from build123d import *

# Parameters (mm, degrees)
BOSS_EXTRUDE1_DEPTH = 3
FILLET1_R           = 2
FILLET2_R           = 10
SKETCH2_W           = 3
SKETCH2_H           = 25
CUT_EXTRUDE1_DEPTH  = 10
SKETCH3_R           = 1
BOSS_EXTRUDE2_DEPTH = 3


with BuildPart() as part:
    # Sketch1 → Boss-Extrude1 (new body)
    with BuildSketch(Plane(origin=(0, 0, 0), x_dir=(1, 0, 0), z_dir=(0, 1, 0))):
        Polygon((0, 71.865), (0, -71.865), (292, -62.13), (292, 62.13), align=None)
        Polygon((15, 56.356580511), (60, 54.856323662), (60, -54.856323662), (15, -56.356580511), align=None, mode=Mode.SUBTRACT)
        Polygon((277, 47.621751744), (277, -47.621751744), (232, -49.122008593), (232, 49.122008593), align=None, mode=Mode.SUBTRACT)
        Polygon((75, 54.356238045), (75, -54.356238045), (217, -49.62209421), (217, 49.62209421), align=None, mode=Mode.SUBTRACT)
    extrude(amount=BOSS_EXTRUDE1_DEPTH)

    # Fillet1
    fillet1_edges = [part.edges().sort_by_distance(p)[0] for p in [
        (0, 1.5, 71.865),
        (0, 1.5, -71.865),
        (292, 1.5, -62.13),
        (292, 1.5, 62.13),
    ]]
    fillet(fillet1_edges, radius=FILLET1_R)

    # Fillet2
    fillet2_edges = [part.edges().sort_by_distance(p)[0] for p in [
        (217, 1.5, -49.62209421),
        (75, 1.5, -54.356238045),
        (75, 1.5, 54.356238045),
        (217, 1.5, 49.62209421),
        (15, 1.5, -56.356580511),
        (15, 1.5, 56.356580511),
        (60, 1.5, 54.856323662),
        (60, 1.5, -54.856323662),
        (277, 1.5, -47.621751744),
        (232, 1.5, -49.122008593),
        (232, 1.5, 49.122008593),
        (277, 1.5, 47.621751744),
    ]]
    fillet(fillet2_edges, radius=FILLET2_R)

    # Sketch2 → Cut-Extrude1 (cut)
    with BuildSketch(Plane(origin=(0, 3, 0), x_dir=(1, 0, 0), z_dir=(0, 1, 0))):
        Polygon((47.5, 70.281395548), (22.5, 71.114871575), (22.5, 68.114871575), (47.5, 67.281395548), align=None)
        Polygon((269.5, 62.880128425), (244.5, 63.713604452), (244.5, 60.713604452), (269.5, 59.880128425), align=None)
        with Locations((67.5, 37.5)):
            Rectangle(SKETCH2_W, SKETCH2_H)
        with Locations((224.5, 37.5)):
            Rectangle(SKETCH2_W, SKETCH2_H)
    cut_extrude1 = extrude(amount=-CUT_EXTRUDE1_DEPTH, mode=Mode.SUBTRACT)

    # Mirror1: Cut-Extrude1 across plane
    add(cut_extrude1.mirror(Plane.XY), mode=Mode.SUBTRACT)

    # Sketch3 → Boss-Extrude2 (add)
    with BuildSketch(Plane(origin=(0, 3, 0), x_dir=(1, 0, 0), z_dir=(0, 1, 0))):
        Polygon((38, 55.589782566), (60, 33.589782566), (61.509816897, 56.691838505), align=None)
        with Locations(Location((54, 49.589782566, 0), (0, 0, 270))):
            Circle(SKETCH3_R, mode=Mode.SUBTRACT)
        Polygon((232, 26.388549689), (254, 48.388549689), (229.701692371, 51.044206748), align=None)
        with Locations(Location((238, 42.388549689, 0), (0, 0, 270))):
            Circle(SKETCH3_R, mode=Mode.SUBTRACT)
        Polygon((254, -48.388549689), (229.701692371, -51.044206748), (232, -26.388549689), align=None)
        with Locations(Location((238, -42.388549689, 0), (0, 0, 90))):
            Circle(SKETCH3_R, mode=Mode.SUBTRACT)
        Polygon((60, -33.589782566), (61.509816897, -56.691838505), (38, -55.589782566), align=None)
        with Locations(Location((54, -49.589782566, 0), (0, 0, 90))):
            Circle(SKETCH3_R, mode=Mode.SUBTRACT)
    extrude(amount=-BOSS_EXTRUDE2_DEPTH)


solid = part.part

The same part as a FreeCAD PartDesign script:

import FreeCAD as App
import Part
import Sketcher

V = App.Vector


def edges_at(feature, points):
    """Names of the edges that pass closest to the given points."""
    edges = feature.Shape.Edges
    near = lambda p: min(range(len(edges)), key=lambda i: edges[i].distToShape(Part.Vertex(*p))[0])
    return sorted({f"Edge{near(p) + 1}" for p in points})

doc = App.newDocument("Part")
body = doc.addObject("PartDesign::Body", "Body")

# Sketch on XZ plane
sketch1 = body.newObject("Sketcher::SketchObject", "Sketch")
sketch1.AttachmentSupport = (doc.getObject("XZ_Plane"), [""])
sketch1.MapMode = "FlatFace"
sketch1.addGeometry([
    Part.LineSegment(V(0, -71.865, 0), V(0, 71.865, 0)),  # 0
    Part.LineSegment(V(0, 71.865, 0), V(292, 62.13, 0)),  # 1
    Part.LineSegment(V(292, 62.13, 0), V(292, -62.13, 0)),  # 2
    Part.LineSegment(V(292, -62.13, 0), V(0, -71.865, 0)),  # 3
    Part.LineSegment(V(15, 56.356581, 0), V(15, -56.356581, 0)),  # 4
    Part.LineSegment(V(15, -56.356581, 0), V(60, -54.856324, 0)),  # 5
    Part.LineSegment(V(60, -54.856324, 0), V(60, 54.856324, 0)),  # 6
    Part.LineSegment(V(60, 54.856324, 0), V(15, 56.356581, 0)),  # 7
    Part.LineSegment(V(75, 54.356238, 0), V(75, -54.356238, 0)),  # 8
    Part.LineSegment(V(75, -54.356238, 0), V(217, -49.622094, 0)),  # 9
    Part.LineSegment(V(217, -49.622094, 0), V(217, 49.622094, 0)),  # 10
    Part.LineSegment(V(217, 49.622094, 0), V(75, 54.356238, 0)),  # 11
    Part.LineSegment(V(232, -49.122009, 0), V(277, -47.621752, 0)),  # 12
    Part.LineSegment(V(277, -47.621752, 0), V(277, 47.621752, 0)),  # 13
    Part.LineSegment(V(277, 47.621752, 0), V(232, 49.122009, 0)),  # 14
    Part.LineSegment(V(232, 49.122009, 0), V(232, -49.122009, 0)),  # 15
], False)
sketch1.addConstraint([
    Sketcher.Constraint("Coincident", 0, 2, 1, 1),
    Sketcher.Constraint("Coincident", 1, 2, 2, 1),
    Sketcher.Constraint("Coincident", 2, 2, 3, 1),
    Sketcher.Constraint("Coincident", 3, 2, 0, 1),
    Sketcher.Constraint("Coincident", 4, 2, 5, 1),
    Sketcher.Constraint("Coincident", 5, 2, 6, 1),
    Sketcher.Constraint("Coincident", 6, 2, 7, 1),
    Sketcher.Constraint("Coincident", 7, 2, 4, 1),
    Sketcher.Constraint("Coincident", 8, 2, 9, 1),
    Sketcher.Constraint("Coincident", 9, 2, 10, 1),
    Sketcher.Constraint("Coincident", 10, 2, 11, 1),
    Sketcher.Constraint("Coincident", 11, 2, 8, 1),
    Sketcher.Constraint("Coincident", 12, 2, 13, 1),
    Sketcher.Constraint("Coincident", 13, 2, 14, 1),
    Sketcher.Constraint("Coincident", 14, 2, 15, 1),
    Sketcher.Constraint("Coincident", 15, 2, 12, 1),
    Sketcher.Constraint("Vertical", 0),
    Sketcher.Constraint("Vertical", 2),
    Sketcher.Constraint("Vertical", 4),
    Sketcher.Constraint("Vertical", 6),
    Sketcher.Constraint("Vertical", 8),
    Sketcher.Constraint("Vertical", 10),
    Sketcher.Constraint("Vertical", 13),
    Sketcher.Constraint("Vertical", 15),
    Sketcher.Constraint("Symmetric", 0, 2, 3, 2, -1, 1),
    Sketcher.Constraint("Parallel", 3, 5),
    Sketcher.Constraint("Parallel", 1, 7),
    Sketcher.Constraint("Parallel", 5, 9),
    Sketcher.Constraint("Parallel", 7, 11),
    Sketcher.Constraint("Parallel", 9, 12),
    Sketcher.Constraint("Parallel", 11, 14),
    Sketcher.Constraint("Equal", 1, 3),
    Sketcher.Constraint("Equal", 7, 12),
    Sketcher.Constraint("DistanceX", -1, 1, 1, 2, 292.0),
    Sketcher.Constraint("DistanceX", -1, 1, 4, 2, 15.0),
    Sketcher.Constraint("DistanceX", -1, 1, 5, 2, 60.0),
    Sketcher.Constraint("DistanceX", -1, 1, 8, 2, 75.0),
    Sketcher.Constraint("DistanceX", -1, 1, 9, 2, 217.0),
    Sketcher.Constraint("DistanceX", -1, 1, 12, 2, 277.0),
    Sketcher.Constraint("DistanceY", 0, 1, 0, 2, 143.73),
    Sketcher.Constraint("DistanceY", 2, 2, 2, 1, 124.26),
    Sketcher.Constraint("DistanceY", 4, 2, 4, 1, 112.713161),
    Sketcher.Constraint("DistanceY", 10, 1, 10, 2, 99.244188),
    Sketcher.Constraint("DistanceY", 13, 1, 13, 2, 95.243503),
    Sketcher.Constraint("DistanceY", 4, 2, -1, 1, 56.356581),
    Sketcher.Constraint("DistanceY", 8, 2, -1, 1, 54.356238),
    Sketcher.Constraint("DistanceY", 12, 2, -1, 1, 47.621752),
])
pad1 = body.newObject("PartDesign::Pad", "Pad")
pad1.Profile = sketch1
pad1.Length = 3
pad1.Reversed = True
doc.recompute()

fillet = body.newObject("PartDesign::Fillet", "Fillet")
fillet.Base = (pad1, edges_at(pad1, [
    (0, 1.5, 71.865),
    (0, 1.5, -71.865),
    (292, 1.5, -62.13),
    (292, 1.5, 62.13),
]))
fillet.Radius = 2
doc.recompute()

fillet2 = body.newObject("PartDesign::Fillet", "Fillet001")
fillet2.Base = (fillet, edges_at(fillet, [
    (217, 1.5, -49.622),
    (75, 1.5, -54.356),
    (75, 1.5, 54.356),
    (217, 1.5, 49.622),
    (15, 1.5, -56.357),
    (15, 1.5, 56.357),
    (60, 1.5, 54.856),
    (60, 1.5, -54.856),
    (277, 1.5, -47.622),
    (232, 1.5, -49.122),
    (232, 1.5, 49.122),
    (277, 1.5, 47.622),
]))
fillet2.Radius = 10

# Sketch on XZ plane
sketch2 = body.newObject("Sketcher::SketchObject", "Sketch001")
sketch2.AttachmentSupport = (doc.getObject("XZ_Plane"), [""])
sketch2.MapMode = "FlatFace"
sketch2.AttachmentOffset = App.Placement(V(0, 0, -3), App.Rotation())
sketch2.addGeometry([
    Part.LineSegment(V(47.5, -70.281396, 0), V(22.5, -71.114872, 0)),  # 0
    Part.LineSegment(V(22.5, -71.114872, 0), V(22.5, -68.114872, 0)),  # 1
    Part.LineSegment(V(22.5, -68.114872, 0), V(47.5, -67.281396, 0)),  # 2
    Part.LineSegment(V(47.5, -67.281396, 0), V(47.5, -70.281396, 0)),  # 3
    Part.LineSegment(V(269.5, -62.880128, 0), V(244.5, -63.713604, 0)),  # 4
    Part.LineSegment(V(244.5, -63.713604, 0), V(244.5, -60.713604, 0)),  # 5
    Part.LineSegment(V(244.5, -60.713604, 0), V(269.5, -59.880128, 0)),  # 6
    Part.LineSegment(V(269.5, -59.880128, 0), V(269.5, -62.880128, 0)),  # 7
    Part.LineSegment(V(66, -50, 0), V(66, -25, 0)),  # 8
    Part.LineSegment(V(66, -25, 0), V(69, -25, 0)),  # 9
    Part.LineSegment(V(69, -25, 0), V(69, -50, 0)),  # 10
    Part.LineSegment(V(69, -50, 0), V(66, -50, 0)),  # 11
    Part.LineSegment(V(223, -50, 0), V(223, -25, 0)),  # 12
    Part.LineSegment(V(223, -25, 0), V(226, -25, 0)),  # 13
    Part.LineSegment(V(226, -25, 0), V(226, -50, 0)),  # 14
    Part.LineSegment(V(226, -50, 0), V(223, -50, 0)),  # 15
], False)
sketch2.addConstraint([
    Sketcher.Constraint("Coincident", 0, 2, 1, 1),
    Sketcher.Constraint("Coincident", 1, 2, 2, 1),
    Sketcher.Constraint("Coincident", 2, 2, 3, 1),
    Sketcher.Constraint("Coincident", 3, 2, 0, 1),
    Sketcher.Constraint("Coincident", 4, 2, 5, 1),
    Sketcher.Constraint("Coincident", 5, 2, 6, 1),
    Sketcher.Constraint("Coincident", 6, 2, 7, 1),
    Sketcher.Constraint("Coincident", 7, 2, 4, 1),
    Sketcher.Constraint("Coincident", 8, 2, 9, 1),
    Sketcher.Constraint("Coincident", 9, 2, 10, 1),
    Sketcher.Constraint("Coincident", 10, 2, 11, 1),
    Sketcher.Constraint("Coincident", 11, 2, 8, 1),
    Sketcher.Constraint("Coincident", 12, 2, 13, 1),
    Sketcher.Constraint("Coincident", 13, 2, 14, 1),
    Sketcher.Constraint("Coincident", 14, 2, 15, 1),
    Sketcher.Constraint("Coincident", 15, 2, 12, 1),
    Sketcher.Constraint("Vertical", 1),
    Sketcher.Constraint("Vertical", 3),
    Sketcher.Constraint("Vertical", 5),
    Sketcher.Constraint("Vertical", 7),
    Sketcher.Constraint("Vertical", 8),
    Sketcher.Constraint("Horizontal", 9),
    Sketcher.Constraint("Vertical", 10),
    Sketcher.Constraint("Horizontal", 11),
    Sketcher.Constraint("Vertical", 12),
    Sketcher.Constraint("Horizontal", 13),
    Sketcher.Constraint("Vertical", 14),
    Sketcher.Constraint("Horizontal", 15),
    Sketcher.Constraint("Parallel", 0, 2),
    Sketcher.Constraint("Parallel", 2, 4),
    Sketcher.Constraint("Parallel", 4, 6),
    Sketcher.Constraint("Horizontal", 9, 2, 12, 2),
    Sketcher.Constraint("Horizontal", 11, 2, 14, 2),
    Sketcher.Constraint("Equal", 11, 13),
    Sketcher.Constraint("Equal", 15, 1),
    Sketcher.Constraint("Equal", 3, 5),
    Sketcher.Constraint("Equal", 2, 4),
    Sketcher.Constraint("DistanceX", 9, 1, 9, 2, 3.0),
    Sketcher.Constraint("DistanceY", 8, 1, 8, 2, 25.0),
    Sketcher.Constraint("DistanceX", -1, 1, 8, 2, 66.0),
    Sketcher.Constraint("DistanceY", 8, 2, -1, 1, 25.0),
    Sketcher.Constraint("DistanceX", -1, 1, 12, 2, 223.0),
    Sketcher.Constraint("DistanceX", 1, 2, 2, 2, 25.0),
    Sketcher.Constraint("DistanceX", 2, 2, 4, 2, 197.0),
    Sketcher.Constraint("DistanceX", -1, 1, 0, 2, 22.5),
    Sketcher.Constraint("Distance", 0, 25.01389),
    Sketcher.Constraint("DistanceY", 0, 2, -1, 1, 71.114872),
    Sketcher.Constraint("DistanceY", 6, 2, -1, 1, 59.880128),
])
pocket1 = body.newObject("PartDesign::Pocket", "Pocket")
pocket1.Profile = sketch2
pocket1.Length = 10
pocket1.Reversed = True
doc.recompute()

mirrored = body.newObject("PartDesign::Mirrored", "Mirrored")
mirrored.Originals = [pocket1]
mirrored.MirrorPlane = (doc.getObject("XY_Plane"), [""])
body.Tip = mirrored

# Sketch on XZ plane
sketch3 = body.newObject("Sketcher::SketchObject", "Sketch002")
sketch3.AttachmentSupport = (doc.getObject("XZ_Plane"), [""])
sketch3.MapMode = "FlatFace"
sketch3.AttachmentOffset = App.Placement(V(0, 0, -3), App.Rotation())
sketch3.addGeometry([
    Part.LineSegment(V(38, -55.589783, 0), V(60, -33.589783, 0)),  # 0
    Part.LineSegment(V(60, -33.589783, 0), V(61.509817, -56.691839, 0)),  # 1
    Part.LineSegment(V(61.509817, -56.691839, 0), V(38, -55.589783, 0)),  # 2
    Part.Circle(V(54, -49.589783, 0), V(0, 0, 1), 1),  # 3
    Part.LineSegment(V(232, -26.38855, 0), V(254, -48.38855, 0)),  # 4
    Part.LineSegment(V(254, -48.38855, 0), V(229.701692, -51.044207, 0)),  # 5
    Part.LineSegment(V(229.701692, -51.044207, 0), V(232, -26.38855, 0)),  # 6
    Part.Circle(V(238, -42.38855, 0), V(0, 0, 1), 1),  # 7
    Part.LineSegment(V(229.701692, 51.044207, 0), V(254, 48.38855, 0)),  # 8
    Part.LineSegment(V(254, 48.38855, 0), V(232, 26.38855, 0)),  # 9
    Part.LineSegment(V(232, 26.38855, 0), V(229.701692, 51.044207, 0)),  # 10
    Part.Circle(V(238, 42.38855, 0), V(0, 0, 1), 1),  # 11
    Part.LineSegment(V(61.509817, 56.691839, 0), V(60, 33.589783, 0)),  # 12
    Part.LineSegment(V(60, 33.589783, 0), V(38, 55.589783, 0)),  # 13
    Part.LineSegment(V(38, 55.589783, 0), V(61.509817, 56.691839, 0)),  # 14
    Part.Circle(V(54, 49.589783, 0), V(0, 0, 1), 1),  # 15
], False)
sketch3.addConstraint([
    Sketcher.Constraint("Coincident", 0, 2, 1, 1),
    Sketcher.Constraint("Coincident", 1, 2, 2, 1),
    Sketcher.Constraint("Coincident", 2, 2, 0, 1),
    Sketcher.Constraint("Coincident", 4, 2, 5, 1),
    Sketcher.Constraint("Coincident", 5, 2, 6, 1),
    Sketcher.Constraint("Coincident", 6, 2, 4, 1),
    Sketcher.Constraint("Coincident", 8, 2, 9, 1),
    Sketcher.Constraint("Coincident", 9, 2, 10, 1),
    Sketcher.Constraint("Coincident", 10, 2, 8, 1),
    Sketcher.Constraint("Coincident", 12, 2, 13, 1),
    Sketcher.Constraint("Coincident", 13, 2, 14, 1),
    Sketcher.Constraint("Coincident", 14, 2, 12, 1),
    Sketcher.Constraint("Equal", 3, 7),
    Sketcher.Constraint("Equal", 7, 11),
    Sketcher.Constraint("Equal", 11, 15),
    Sketcher.Constraint("Symmetric", 7, 3, 11, 3, -1),
    Sketcher.Constraint("Symmetric", 3, 3, 15, 3, -1),
    Sketcher.Constraint("Symmetric", 4, 2, 8, 2, -1),
    Sketcher.Constraint("Symmetric", 6, 2, 9, 2, -1),
    Sketcher.Constraint("Symmetric", 5, 2, 10, 2, -1),
    Sketcher.Constraint("Symmetric", 0, 2, 12, 2, -1),
    Sketcher.Constraint("Symmetric", 2, 2, 13, 2, -1),
    Sketcher.Constraint("Symmetric", 1, 2, 14, 2, -1),
    Sketcher.Constraint("Perpendicular", 0, 4),
    Sketcher.Constraint("Perpendicular", 4, 9),
    Sketcher.Constraint("Equal", 0, 4),
    Sketcher.Constraint("Diameter", 3, 2.0),
    Sketcher.Constraint("DistanceX", -1, 1, 3, 3, 54.0),
    Sketcher.Constraint("DistanceX", -1, 1, 7, 3, 238.0),
    Sketcher.Constraint("DistanceX", -1, 1, 0, 2, 60.0),
    Sketcher.Constraint("DistanceX", -1, 1, 2, 2, 38.0),
    Sketcher.Constraint("DistanceX", -1, 1, 4, 2, 254.0),
    Sketcher.Constraint("DistanceY", 3, 3, 0, 2, 16.0),
    Sketcher.Constraint("DistanceY", 4, 2, 7, 3, 6.0),
    Sketcher.Constraint("Distance", 5, 24.443),
    Sketcher.Constraint("DistanceY", 7, 3, 11, 3, 84.777099),
    Sketcher.Constraint("Distance", 1, 23.15134),
    Sketcher.Constraint("DistanceY", 1, 2, -1, 1, 56.691839),
    Sketcher.Constraint("DistanceY", 1, 2, 15, 3, 106.281621),
    Sketcher.Constraint("DistanceY", 1, 2, 5, 2, 5.647632),
])
pad2 = body.newObject("PartDesign::Pad", "Pad001")
pad2.Profile = sketch3
pad2.Length = 3

doc.recompute()
